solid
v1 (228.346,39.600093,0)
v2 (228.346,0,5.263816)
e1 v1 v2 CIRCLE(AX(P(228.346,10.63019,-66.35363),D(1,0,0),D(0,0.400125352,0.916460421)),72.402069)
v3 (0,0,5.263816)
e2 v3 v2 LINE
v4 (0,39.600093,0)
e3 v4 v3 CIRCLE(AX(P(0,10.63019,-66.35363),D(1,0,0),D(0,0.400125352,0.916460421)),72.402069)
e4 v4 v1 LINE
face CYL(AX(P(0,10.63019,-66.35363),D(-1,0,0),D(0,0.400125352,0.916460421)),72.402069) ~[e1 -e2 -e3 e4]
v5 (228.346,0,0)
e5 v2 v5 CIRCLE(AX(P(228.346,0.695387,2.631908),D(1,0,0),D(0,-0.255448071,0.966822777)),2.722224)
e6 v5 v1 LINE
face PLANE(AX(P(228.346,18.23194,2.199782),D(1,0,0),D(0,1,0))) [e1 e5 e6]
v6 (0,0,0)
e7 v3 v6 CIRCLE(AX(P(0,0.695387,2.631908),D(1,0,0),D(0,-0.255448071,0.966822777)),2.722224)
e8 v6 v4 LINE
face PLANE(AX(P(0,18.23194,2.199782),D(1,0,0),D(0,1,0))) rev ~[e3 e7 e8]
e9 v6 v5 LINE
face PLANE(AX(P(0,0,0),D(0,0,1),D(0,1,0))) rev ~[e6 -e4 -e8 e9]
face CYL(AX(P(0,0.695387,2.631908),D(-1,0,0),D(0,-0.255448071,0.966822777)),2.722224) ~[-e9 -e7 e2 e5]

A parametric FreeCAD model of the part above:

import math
import FreeCAD as App
import Part
import Sketcher

V = App.Vector
Q = App.Units.Quantity

doc = App.newDocument("Part")
body = doc.addObject("PartDesign::Body", "Body")

# Sketch on YZ plane
sketch1 = body.newObject("Sketcher::SketchObject", "Sketch")
sketch1.AttachmentSupport = (doc.getObject("YZ_Plane"), [""])
sketch1.MapMode = "FlatFace"
sketch1.addGeometry(Part.ArcOfCircle(Part.Circle(V(10.6, -66.4, 0), V(0, 0, 1), 72.4), math.radians(66), math.radians(98)), False)
sketch1.addGeometry(Part.ArcOfCircle(Part.Circle(V(0.7, 2.6, 0), V(0, 0, 1), 2.7), math.radians(105), math.radians(255)), False)
sketch1.addGeometry(Part.LineSegment(V(0, 0, 0), V(39.6, 0, 0)), False)
sketch1.addConstraint(Sketcher.Constraint("Coincident", 0, 2, 1, 1))
sketch1.addConstraint(Sketcher.Constraint("Coincident", 1, 2, 2, 1))
sketch1.addConstraint(Sketcher.Constraint("Coincident", 2, 2, 0, 1))
sketch1.addConstraint(Sketcher.Constraint("Horizontal", 2))
sketch1.addConstraint(Sketcher.Constraint("Coincident", 1, 2, -1, 1))
sketch1.addConstraint(Sketcher.Constraint("PointOnObject", 0, 2, -2))
sketch1.addConstraint(Sketcher.Constraint("Radius", 0, 72.402069))
sketch1.addConstraint(Sketcher.Constraint("Radius", 1, 2.722224))
sketch1.addConstraint(Sketcher.Constraint("DistanceX", 2, 1, 2, 2, 39.600093))
sketch1.addConstraint(Sketcher.Constraint("DistanceX", -1, 1, 0, 3, 10.63019))
pad1 = body.newObject("PartDesign::Pad", "Pad")
pad1.Profile = sketch1
pad1.Length = Q("8.99 in")

doc.recompute()
